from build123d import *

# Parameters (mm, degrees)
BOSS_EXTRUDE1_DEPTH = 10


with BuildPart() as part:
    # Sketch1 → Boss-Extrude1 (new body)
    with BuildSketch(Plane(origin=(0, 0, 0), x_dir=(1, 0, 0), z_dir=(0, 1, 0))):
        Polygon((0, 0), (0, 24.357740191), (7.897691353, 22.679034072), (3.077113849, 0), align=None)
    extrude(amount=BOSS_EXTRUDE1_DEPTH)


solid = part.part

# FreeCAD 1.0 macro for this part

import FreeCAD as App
import Part
import Sketcher
Q = App.Units.Quantity


def add_polygon(sketch, points):
    """Adds a closed chain of lines whose ends are joined by coincident constraints."""
    first, n = sketch.GeometryCount, len(points)
    for a, b in zip(points, points[1:] + points[:1]):
        sketch.addGeometry(Part.LineSegment(App.Vector(*a, 0), App.Vector(*b, 0)), False)
    for i in range(n):
        sketch.addConstraint(Sketcher.Constraint("Coincident", first + i, 2, first + (i + 1) % n, 1))

doc = App.newDocument("Part")
body = doc.addObject("PartDesign::Body", "Body")

# Sketch on XZ plane
sketch1 = body.newObject("Sketcher::SketchObject", "Sketch")
sketch1.AttachmentSupport = (doc.getObject("XZ_Plane"), [""])
sketch1.MapMode = "FlatFace"
add_polygon(sketch1, [(0, -24.4), (0, 0), (3.1, 0), (7.9, -22.7)])  # lines 0-3
sketch1.addConstraint([
    Sketcher.Constraint("Vertical", 0),
    Sketcher.Constraint("Horizontal", 1),
    Sketcher.Constraint("Coincident", 0, 2, -1, 1),
    Sketcher.Constraint("Perpendicular", 2, 3),
    Sketcher.Constraint("Angle", 2, Q("-78 deg")),
    Sketcher.Constraint("DistanceY", 0, 1, 0, 2, 24.35774),
    Sketcher.Constraint("Distance", 3, 8.07413),
])
pad1 = body.newObject("PartDesign::Pad", "Pad")
pad1.Profile = sketch1
pad1.Length = 10
pad1.Reversed = True

doc.recompute()
